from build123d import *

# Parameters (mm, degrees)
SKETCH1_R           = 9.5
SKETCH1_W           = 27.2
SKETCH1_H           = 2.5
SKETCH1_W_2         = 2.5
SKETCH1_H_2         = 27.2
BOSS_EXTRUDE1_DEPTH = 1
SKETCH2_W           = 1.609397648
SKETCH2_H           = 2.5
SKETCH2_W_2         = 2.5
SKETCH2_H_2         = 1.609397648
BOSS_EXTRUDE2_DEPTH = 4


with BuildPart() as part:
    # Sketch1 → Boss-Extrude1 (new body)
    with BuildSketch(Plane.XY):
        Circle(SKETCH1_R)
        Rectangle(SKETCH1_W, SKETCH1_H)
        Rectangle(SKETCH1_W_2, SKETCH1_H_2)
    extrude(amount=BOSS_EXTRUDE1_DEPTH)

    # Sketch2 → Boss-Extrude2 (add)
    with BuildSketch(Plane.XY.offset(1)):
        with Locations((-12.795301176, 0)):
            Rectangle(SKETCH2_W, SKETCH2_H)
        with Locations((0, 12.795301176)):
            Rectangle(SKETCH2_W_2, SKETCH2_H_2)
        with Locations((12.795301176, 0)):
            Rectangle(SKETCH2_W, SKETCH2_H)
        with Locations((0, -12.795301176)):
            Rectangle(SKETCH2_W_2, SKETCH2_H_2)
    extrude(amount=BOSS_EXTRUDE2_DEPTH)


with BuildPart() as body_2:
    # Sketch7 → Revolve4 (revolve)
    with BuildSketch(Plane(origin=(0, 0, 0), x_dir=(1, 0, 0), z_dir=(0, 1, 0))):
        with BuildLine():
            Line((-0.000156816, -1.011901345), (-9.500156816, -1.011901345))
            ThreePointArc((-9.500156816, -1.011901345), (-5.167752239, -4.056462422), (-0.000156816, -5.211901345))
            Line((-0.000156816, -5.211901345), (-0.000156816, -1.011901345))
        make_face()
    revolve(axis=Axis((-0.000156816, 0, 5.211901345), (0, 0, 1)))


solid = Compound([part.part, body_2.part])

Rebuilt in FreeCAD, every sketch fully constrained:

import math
import FreeCAD as App
import Part
import Sketcher
from FreeCAD import Vector


def add_polygon(sketch, points):
    """Adds a closed chain of lines whose ends are joined by coincident constraints."""
    first, n = sketch.GeometryCount, len(points)
    for a, b in zip(points, points[1:] + points[:1]):
        sketch.addGeometry(Part.LineSegment(App.Vector(*a, 0), App.Vector(*b, 0)), False)
    for i in range(n):
        sketch.addConstraint(Sketcher.Constraint("Coincident", first + i, 2, first + (i + 1) % n, 1))

doc = App.newDocument("Part")
body = doc.addObject("PartDesign::Body", "Body")

# Sketch on XY plane
sketch1 = body.newObject("Sketcher::SketchObject", "Sketch")
sketch1.AttachmentSupport = (doc.getObject("XY_Plane"), [""])
sketch1.MapMode = "FlatFace"
sketch1.addGeometry(Part.ArcOfCircle(Part.Circle(Vector(0, 0, 0), Vector(0, 0, 1), 9.5), math.radians(-82), math.radians(-8)), False)
sketch1.addGeometry(Part.LineSegment(Vector(9.4, -1.2, 0), Vector(13.6, -1.2, 0)), False)
sketch1.addGeometry(Part.LineSegment(Vector(13.6, -1.2, 0), Vector(13.6, 1.2, 0)), False)
sketch1.addGeometry(Part.LineSegment(Vector(13.6, 1.2, 0), Vector(9.4, 1.2, 0)), False)
sketch1.addGeometry(Part.ArcOfCircle(Part.Circle(Vector(0, 0, 0), Vector(0, 0, 1), 9.5), math.radians(8), math.radians(82)), False)
sketch1.addGeometry(Part.LineSegment(Vector(1.2, 9.4, 0), Vector(1.2, 13.6, 0)), False)
sketch1.addGeometry(Part.LineSegment(Vector(1.2, 13.6, 0), Vector(-1.2, 13.6, 0)), False)
sketch1.addGeometry(Part.LineSegment(Vector(-1.2, 13.6, 0), Vector(-1.2, 9.4, 0)), False)
sketch1.addGeometry(Part.ArcOfCircle(Part.Circle(Vector(0, 0, 0), Vector(0, 0, 1), 9.5), math.radians(98), math.radians(172)), False)
sketch1.addGeometry(Part.LineSegment(Vector(-9.4, 1.2, 0), Vector(-13.6, 1.2, 0)), False)
sketch1.addGeometry(Part.LineSegment(Vector(-13.6, 1.2, 0), Vector(-13.6, -1.2, 0)), False)
sketch1.addGeometry(Part.LineSegment(Vector(-13.6, -1.2, 0), Vector(-9.4, -1.2, 0)), False)
sketch1.addGeometry(Part.ArcOfCircle(Part.Circle(Vector(0, 0, 0), Vector(0, 0, 1), 9.5), math.radians(-172), math.radians(-98)), False)
sketch1.addGeometry(Part.LineSegment(Vector(-1.2, -9.4, 0), Vector(-1.2, -13.6, 0)), False)
sketch1.addGeometry(Part.LineSegment(Vector(-1.2, -13.6, 0), Vector(1.2, -13.6, 0)), False)
sketch1.addGeometry(Part.LineSegment(Vector(1.2, -13.6, 0), Vector(1.2, -9.4, 0)), False)
sketch1.addConstraint(Sketcher.Constraint("Coincident", 0, 2, 1, 1))
sketch1.addConstraint(Sketcher.Constraint("Coincident", 1, 2, 2, 1))
sketch1.addConstraint(Sketcher.Constraint("Coincident", 2, 2, 3, 1))
sketch1.addConstraint(Sketcher.Constraint("Coincident", 3, 2, 4, 1))
sketch1.addConstraint(Sketcher.Constraint("Coincident", 4, 2, 5, 1))
sketch1.addConstraint(Sketcher.Constraint("Coincident", 5, 2, 6, 1))
sketch1.addConstraint(Sketcher.Constraint("Coincident", 6, 2, 7, 1))
sketch1.addConstraint(Sketcher.Constraint("Coincident", 7, 2, 8, 1))
sketch1.addConstraint(Sketcher.Constraint("Coincident", 8, 2, 9, 1))
sketch1.addConstraint(Sketcher.Constraint("Coincident", 9, 2, 10, 1))
sketch1.addConstraint(Sketcher.Constraint("Coincident", 10, 2, 11, 1))
sketch1.addConstraint(Sketcher.Constraint("Coincident", 11, 2, 12, 1))
sketch1.addConstraint(Sketcher.Constraint("Coincident", 12, 2, 13, 1))
sketch1.addConstraint(Sketcher.Constraint("Coincident", 13, 2, 14, 1))
sketch1.addConstraint(Sketcher.Constraint("Coincident", 14, 2, 15, 1))
sketch1.addConstraint(Sketcher.Constraint("Coincident", 15, 2, 0, 1))
sketch1.addConstraint(Sketcher.Constraint("Horizontal", 1))
sketch1.addConstraint(Sketcher.Constraint("Vertical", 2))
sketch1.addConstraint(Sketcher.Constraint("Horizontal", 3))
sketch1.addConstraint(Sketcher.Constraint("Vertical", 5))
sketch1.addConstraint(Sketcher.Constraint("Horizontal", 6))
sketch1.addConstraint(Sketcher.Constraint("Vertical", 7))
sketch1.addConstraint(Sketcher.Constraint("Horizontal", 9))
sketch1.addConstraint(Sketcher.Constraint("Vertical", 10))
sketch1.addConstraint(Sketcher.Constraint("Horizontal", 11))
sketch1.addConstraint(Sketcher.Constraint("Vertical", 13))
sketch1.addConstraint(Sketcher.Constraint("Horizontal", 14))
sketch1.addConstraint(Sketcher.Constraint("Vertical", 15))
sketch1.addConstraint(Sketcher.Constraint("Coincident", 0, 3, -1, 1))
sketch1.addConstraint(Sketcher.Constraint("Coincident", 4, 3, -1, 1))
sketch1.addConstraint(Sketcher.Constraint("Coincident", 8, 3, -1, 1))
sketch1.addConstraint(Sketcher.Constraint("Coincident", 12, 3, -1, 1))
sketch1.addConstraint(Sketcher.Constraint("Equal", 0, 4))
sketch1.addConstraint(Sketcher.Constraint("Equal", 4, 8))
sketch1.addConstraint(Sketcher.Constraint("Equal", 8, 12))
sketch1.addConstraint(Sketcher.Constraint("Symmetric", 1, 2, 9, 2, -1, 1))
sketch1.addConstraint(Sketcher.Constraint("Symmetric", 5, 2, 13, 2, -1, 1))
sketch1.addConstraint(Sketcher.Constraint("Horizontal", 4, 2, 7, 2))
sketch1.addConstraint(Sketcher.Constraint("Horizontal", 3, 2, 8, 2))
sketch1.addConstraint(Sketcher.Constraint("Horizontal", 1, 2, 10, 2))
sketch1.addConstraint(Sketcher.Constraint("Horizontal", 12, 2, 15, 2))
sketch1.addConstraint(Sketcher.Constraint("Equal", 14, 2))
sketch1.addConstraint(Sketcher.Constraint("Equal", 11, 5))
sketch1.addConstraint(Sketcher.Constraint("Radius", 0, 9.5))
sketch1.addConstraint(Sketcher.Constraint("DistanceX", 6, 2, 6, 1, 2.5))
sketch1.addConstraint(Sketcher.Constraint("DistanceX", -1, 1, 1, 2, 13.6))
pad1 = body.newObject("PartDesign::Pad", "Pad")
pad1.Profile = sketch1
pad1.Length = 1

# Sketch on XY plane
sketch2 = body.newObject("Sketcher::SketchObject", "Sketch001")
sketch2.AttachmentSupport = (doc.getObject("XY_Plane"), [""])
sketch2.MapMode = "FlatFace"
sketch2.AttachmentOffset = App.Placement(Vector(0, 0, 1), App.Rotation())
add_polygon(sketch2, [(-13.6, 1.2), (-13.6, -1.2), (-12, -1.2), (-12, 1.2)])  # lines 0-3
add_polygon(sketch2, [(-1.2, 13.6), (-1.2, 12), (1.2, 12), (1.2, 13.6)])  # lines 4-7
add_polygon(sketch2, [(12, 1.2), (12, -1.2), (13.6, -1.2), (13.6, 1.2)])  # lines 8-11
add_polygon(sketch2, [(-1.2, -12), (-1.2, -13.6), (1.2, -13.6), (1.2, -12)])  # lines 12-15
sketch2.addConstraint(Sketcher.Constraint("Vertical", 0))
sketch2.addConstraint(Sketcher.Constraint("Horizontal", 1))
sketch2.addConstraint(Sketcher.Constraint("Vertical", 2))
sketch2.addConstraint(Sketcher.Constraint("Horizontal", 3))
sketch2.addConstraint(Sketcher.Constraint("Vertical", 4))
sketch2.addConstraint(Sketcher.Constraint("Horizontal", 5))
sketch2.addConstraint(Sketcher.Constraint("Vertical", 6))
sketch2.addConstraint(Sketcher.Constraint("Horizontal", 7))
sketch2.addConstraint(Sketcher.Constraint("Vertical", 8))
sketch2.addConstraint(Sketcher.Constraint("Horizontal", 9))
sketch2.addConstraint(Sketcher.Constraint("Vertical", 10))
sketch2.addConstraint(Sketcher.Constraint("Horizontal", 11))
sketch2.addConstraint(Sketcher.Constraint("Vertical", 12))
sketch2.addConstraint(Sketcher.Constraint("Horizontal", 13))
sketch2.addConstraint(Sketcher.Constraint("Vertical", 14))
sketch2.addConstraint(Sketcher.Constraint("Horizontal", 15))
sketch2.addConstraint(Sketcher.Constraint("Symmetric", 2, 2, 8, 2, -1, 1))
sketch2.addConstraint(Sketcher.Constraint("Symmetric", 0, 2, 10, 2, -1, 1))
sketch2.addConstraint(Sketcher.Constraint("Symmetric", 6, 2, 12, 2, -1, 1))
sketch2.addConstraint(Sketcher.Constraint("Symmetric", 4, 2, 14, 2, -1, 1))
sketch2.addConstraint(Sketcher.Constraint("Horizontal", 1, 2, 8, 2))
sketch2.addConstraint(Sketcher.Constraint("Vertical", 7, 2, 12, 2))
sketch2.addConstraint(Sketcher.Constraint("Equal", 15, 0))
sketch2.addConstraint(Sketcher.Constraint("Equal", 11, 4))
sketch2.addConstraint(Sketcher.Constraint("DistanceX", 5, 1, 5, 2, 2.5))
sketch2.addConstraint(Sketcher.Constraint("DistanceX", 0, 2, -1, 1, 13.6))
sketch2.addConstraint(Sketcher.Constraint("DistanceY", -1, 1, 6, 2, 13.6))
sketch2.addConstraint(Sketcher.Constraint("DistanceX", 1, 1, 1, 2, 1.609398))
pad2 = body.newObject("PartDesign::Pad", "Pad001")
pad2.Profile = sketch2
pad2.Length = 4
body2 = doc.addObject("PartDesign::Body", "Body001")

# Sketch on XZ plane
sketch3 = body2.newObject("Sketcher::SketchObject", "Sketch002")
sketch3.AttachmentSupport = (doc.getObject("XZ_Plane001"), [""])
sketch3.MapMode = "FlatFace"
sketch3.addGeometry(Part.LineSegment(Vector(0, 1, 0), Vector(-9.5, 1, 0)), False)
sketch3.addGeometry(Part.ArcOfCircle(Part.Circle(Vector(0.3, -8.4, 0), Vector(0, 0, 1), 13.6), math.radians(91), math.radians(136)), False)
sketch3.addGeometry(Part.LineSegment(Vector(0, 5.2, 0), Vector(0, 1, 0)), False)
sketch3.addGeometry(Part.LineSegment(Vector(0, -8.4, 0), Vector(0, 5.2, 0)), True)  # axis
sketch3.addConstraint(Sketcher.Constraint("Coincident", 0, 2, 1, 2))
sketch3.addConstraint(Sketcher.Constraint("Coincident", 1, 1, 2, 1))
sketch3.addConstraint(Sketcher.Constraint("Coincident", 2, 2, 0, 1))
sketch3.addConstraint(Sketcher.Constraint("Horizontal", 0))
sketch3.addConstraint(Sketcher.Constraint("Vertical", 2))
sketch3.addConstraint(Sketcher.Constraint("Vertical", 3))
sketch3.addConstraint(Sketcher.Constraint("Coincident", 3, 2, 1, 1))
sketch3.addConstraint(Sketcher.Constraint("Horizontal", 1, 3, 3, 1))
sketch3.addConstraint(Sketcher.Constraint("DistanceX", 0, 2, 0, 1, 9.5))
sketch3.addConstraint(Sketcher.Constraint("DistanceY", 2, 2, 2, 1, 4.2))
sketch3.addConstraint(Sketcher.Constraint("Radius", 1, 13.574904))
sketch3.addConstraint(Sketcher.Constraint("DistanceY", -1, 1, 0, 2, 1.011901))
sketch3.addConstraint(Sketcher.Constraint("DistanceX", -1, 1, 1, 3, 0.321276))
revolution = body2.newObject("PartDesign::Revolution", "Revolution")
revolution.Profile = sketch3
revolution.ReferenceAxis = (sketch3, ["Axis0"])
revolution.Angle = 360

doc.recompute()
